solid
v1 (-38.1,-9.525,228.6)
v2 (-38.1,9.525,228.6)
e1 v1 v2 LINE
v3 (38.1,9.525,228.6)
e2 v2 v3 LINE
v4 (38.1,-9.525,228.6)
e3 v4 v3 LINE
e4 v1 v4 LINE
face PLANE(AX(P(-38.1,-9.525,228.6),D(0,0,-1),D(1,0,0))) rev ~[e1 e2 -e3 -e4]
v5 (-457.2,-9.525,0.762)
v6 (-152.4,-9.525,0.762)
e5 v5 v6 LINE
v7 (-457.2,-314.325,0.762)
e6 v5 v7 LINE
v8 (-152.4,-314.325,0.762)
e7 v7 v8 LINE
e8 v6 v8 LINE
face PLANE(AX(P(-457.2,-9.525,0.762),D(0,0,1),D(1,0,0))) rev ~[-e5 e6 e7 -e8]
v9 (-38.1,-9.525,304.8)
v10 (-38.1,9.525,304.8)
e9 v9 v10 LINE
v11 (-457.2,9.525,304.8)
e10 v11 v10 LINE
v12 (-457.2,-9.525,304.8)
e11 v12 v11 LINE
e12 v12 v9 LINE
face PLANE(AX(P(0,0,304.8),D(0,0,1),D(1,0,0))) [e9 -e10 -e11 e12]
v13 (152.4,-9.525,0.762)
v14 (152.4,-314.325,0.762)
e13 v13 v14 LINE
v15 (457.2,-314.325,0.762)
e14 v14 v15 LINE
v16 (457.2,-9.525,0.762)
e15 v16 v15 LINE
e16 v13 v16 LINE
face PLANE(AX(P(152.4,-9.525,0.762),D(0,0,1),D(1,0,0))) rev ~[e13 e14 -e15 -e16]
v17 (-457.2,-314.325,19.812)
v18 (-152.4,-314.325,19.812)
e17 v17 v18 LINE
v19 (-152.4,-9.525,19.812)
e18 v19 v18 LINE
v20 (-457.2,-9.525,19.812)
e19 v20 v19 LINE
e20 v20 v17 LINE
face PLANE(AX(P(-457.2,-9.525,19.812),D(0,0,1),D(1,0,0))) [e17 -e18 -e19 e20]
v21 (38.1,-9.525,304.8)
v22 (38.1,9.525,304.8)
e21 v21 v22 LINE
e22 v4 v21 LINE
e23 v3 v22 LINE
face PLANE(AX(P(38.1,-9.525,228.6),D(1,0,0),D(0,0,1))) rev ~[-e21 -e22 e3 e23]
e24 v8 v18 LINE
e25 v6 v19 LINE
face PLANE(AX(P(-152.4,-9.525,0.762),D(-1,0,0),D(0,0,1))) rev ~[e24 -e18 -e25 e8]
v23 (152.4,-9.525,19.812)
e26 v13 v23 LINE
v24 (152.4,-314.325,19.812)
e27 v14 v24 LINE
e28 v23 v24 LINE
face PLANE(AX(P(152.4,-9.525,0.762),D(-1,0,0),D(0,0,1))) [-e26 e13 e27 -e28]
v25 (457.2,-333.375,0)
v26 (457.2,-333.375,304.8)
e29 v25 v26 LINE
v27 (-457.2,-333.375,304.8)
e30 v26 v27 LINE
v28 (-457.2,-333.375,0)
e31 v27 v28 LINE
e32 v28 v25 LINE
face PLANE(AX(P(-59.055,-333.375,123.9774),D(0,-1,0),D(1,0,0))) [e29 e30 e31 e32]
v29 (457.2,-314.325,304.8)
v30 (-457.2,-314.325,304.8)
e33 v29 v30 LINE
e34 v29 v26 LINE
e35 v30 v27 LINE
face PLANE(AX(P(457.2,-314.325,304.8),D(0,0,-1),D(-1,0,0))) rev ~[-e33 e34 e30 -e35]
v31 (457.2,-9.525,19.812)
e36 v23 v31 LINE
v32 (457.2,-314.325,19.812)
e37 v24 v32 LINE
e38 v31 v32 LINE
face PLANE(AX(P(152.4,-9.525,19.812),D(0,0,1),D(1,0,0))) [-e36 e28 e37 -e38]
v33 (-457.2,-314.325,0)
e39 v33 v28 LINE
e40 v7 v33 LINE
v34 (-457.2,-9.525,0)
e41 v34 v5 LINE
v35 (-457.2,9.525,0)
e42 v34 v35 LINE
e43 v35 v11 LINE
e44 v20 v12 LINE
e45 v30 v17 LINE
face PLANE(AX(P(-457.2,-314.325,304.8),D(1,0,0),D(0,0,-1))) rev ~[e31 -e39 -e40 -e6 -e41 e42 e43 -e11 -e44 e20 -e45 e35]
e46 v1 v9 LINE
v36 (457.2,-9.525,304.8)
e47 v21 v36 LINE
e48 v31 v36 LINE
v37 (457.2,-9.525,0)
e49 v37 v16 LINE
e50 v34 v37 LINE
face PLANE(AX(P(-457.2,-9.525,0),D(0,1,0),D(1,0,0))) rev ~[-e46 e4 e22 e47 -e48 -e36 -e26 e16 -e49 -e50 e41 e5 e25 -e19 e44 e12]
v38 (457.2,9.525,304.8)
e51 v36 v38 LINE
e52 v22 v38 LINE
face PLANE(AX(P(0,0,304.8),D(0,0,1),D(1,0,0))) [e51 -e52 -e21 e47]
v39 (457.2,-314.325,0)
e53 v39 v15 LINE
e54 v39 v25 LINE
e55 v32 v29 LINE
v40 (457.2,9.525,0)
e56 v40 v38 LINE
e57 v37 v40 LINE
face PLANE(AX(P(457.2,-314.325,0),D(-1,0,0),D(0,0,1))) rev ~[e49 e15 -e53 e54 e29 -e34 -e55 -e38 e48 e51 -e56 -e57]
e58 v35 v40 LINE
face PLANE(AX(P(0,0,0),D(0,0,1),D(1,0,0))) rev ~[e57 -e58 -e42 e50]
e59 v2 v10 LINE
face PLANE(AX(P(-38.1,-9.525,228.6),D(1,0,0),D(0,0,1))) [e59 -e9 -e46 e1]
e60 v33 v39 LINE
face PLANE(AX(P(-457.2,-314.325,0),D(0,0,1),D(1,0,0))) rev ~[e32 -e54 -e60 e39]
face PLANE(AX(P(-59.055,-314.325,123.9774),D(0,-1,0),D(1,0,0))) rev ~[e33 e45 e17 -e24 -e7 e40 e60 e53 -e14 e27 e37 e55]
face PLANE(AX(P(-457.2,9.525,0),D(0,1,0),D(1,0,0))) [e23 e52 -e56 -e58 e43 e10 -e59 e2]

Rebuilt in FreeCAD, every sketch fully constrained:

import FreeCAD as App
import Part
import Sketcher
Q = App.Units.Quantity

doc = App.newDocument("Part")
body = doc.addObject("PartDesign::Body", "Body")

sketch1 = doc.addObject("Sketcher::SketchObject", "Sketch")
body.addObject(sketch1)
sketch1.AttachmentSupport = (doc.XY_Plane, [""])
sketch1.MapMode = "FlatFace"
sketch1.addGeometry(Part.LineSegment(App.Vector(-457.2, 9.525, 0), App.Vector(-457.2, -9.525, 0)), False)
sketch1.addGeometry(Part.LineSegment(App.Vector(-457.2, -9.525, 0), App.Vector(457.2, -9.525, 0)), False)
sketch1.addGeometry(Part.LineSegment(App.Vector(457.2, -9.525, 0), App.Vector(457.2, 9.525, 0)), False)
sketch1.addGeometry(Part.LineSegment(App.Vector(457.2, 9.525, 0), App.Vector(-457.2, 9.525, 0)), False)
sketch1.addConstraint(Sketcher.Constraint("Coincident", 0, 2, 1, 1))
sketch1.addConstraint(Sketcher.Constraint("Coincident", 1, 2, 2, 1))
sketch1.addConstraint(Sketcher.Constraint("Coincident", 2, 2, 3, 1))
sketch1.addConstraint(Sketcher.Constraint("Coincident", 3, 2, 0, 1))
sketch1.addConstraint(Sketcher.Constraint("Vertical", 0))
sketch1.addConstraint(Sketcher.Constraint("Horizontal", 1))
sketch1.addConstraint(Sketcher.Constraint("Vertical", 2))
sketch1.addConstraint(Sketcher.Constraint("Horizontal", 3))
sketch1.addConstraint(Sketcher.Constraint("Symmetric", 0, 2, 2, 2, -1, 1))
sketch1.addConstraint(Sketcher.Constraint("DistanceX", 1, 1, 1, 2, Q("36 in")))
sketch1.addConstraint(Sketcher.Constraint("DistanceY", 0, 2, 0, 1, Q("0.75 in")))
pad1 = doc.addObject("PartDesign::Pad", "Pad")
body.addObject(pad1)
pad1.Profile = sketch1
pad1.Length = Q("12 in")

sketch2 = doc.addObject("Sketcher::SketchObject", "Sketch001")
body.addObject(sketch2)
sketch2.AttachmentSupport = (doc.XZ_Plane, [""])
sketch2.MapMode = "FlatFace"
sketch2.AttachmentOffset = App.Placement(App.Vector(0, 0, 0.375 * 25.4), App.Rotation())
sketch2.addGeometry(Part.LineSegment(App.Vector(-38.1, 304.8, 0), App.Vector(-38.1, 228.6, 0)), False)
sketch2.addGeometry(Part.LineSegment(App.Vector(-38.1, 228.6, 0), App.Vector(38.1, 228.6, 0)), False)
sketch2.addGeometry(Part.LineSegment(App.Vector(38.1, 228.6, 0), App.Vector(38.1, 304.8, 0)), False)
sketch2.addGeometry(Part.LineSegment(App.Vector(38.1, 304.8, 0), App.Vector(-38.1, 304.8, 0)), False)
sketch2.addConstraint(Sketcher.Constraint("Coincident", 0, 2, 1, 1))
sketch2.addConstraint(Sketcher.Constraint("Coincident", 1, 2, 2, 1))
sketch2.addConstraint(Sketcher.Constraint("Coincident", 2, 2, 3, 1))
sketch2.addConstraint(Sketcher.Constraint("Coincident", 3, 2, 0, 1))
sketch2.addConstraint(Sketcher.Constraint("Vertical", 0))
sketch2.addConstraint(Sketcher.Constraint("Horizontal", 1))
sketch2.addConstraint(Sketcher.Constraint("Vertical", 2))
sketch2.addConstraint(Sketcher.Constraint("Horizontal", 3))
sketch2.addConstraint(Sketcher.Constraint("Equal", 3, 0))
sketch2.addConstraint(Sketcher.Constraint("DistanceX", 1, 1, 1, 2, Q("3 in")))
sketch2.addConstraint(Sketcher.Constraint("DistanceY", -1, 1, 0, 2, Q("9 in")))
sketch2.addConstraint(Sketcher.Constraint("DistanceX", 0, 2, -1, 1, Q("1.5 in")))
pocket1 = doc.addObject("PartDesign::Pocket", "Pocket")
body.addObject(pocket1)
pocket1.Profile = sketch2
pocket1.Length = Q("0.75 in")

sketch3 = doc.addObject("Sketcher::SketchObject", "Sketch002")
body.addObject(sketch3)
sketch3.AttachmentSupport = (doc.XZ_Plane, [""])
sketch3.MapMode = "FlatFace"
sketch3.AttachmentOffset = App.Placement(App.Vector(0, 0, 0.375 * 25.4), App.Rotation())
sketch3.addGeometry(Part.LineSegment(App.Vector(-457.2, 19.812, 0), App.Vector(-457.2, 0.762, 0)), False)
sketch3.addGeometry(Part.LineSegment(App.Vector(-457.2, 0.762, 0), App.Vector(-152.4, 0.762, 0)), False)
sketch3.addGeometry(Part.LineSegment(App.Vector(-152.4, 0.762, 0), App.Vector(-152.4, 19.812, 0)), False)
sketch3.addGeometry(Part.LineSegment(App.Vector(-152.4, 19.812, 0), App.Vector(-457.2, 19.812, 0)), False)
sketch3.addConstraint(Sketcher.Constraint("Coincident", 0, 2, 1, 1))
sketch3.addConstraint(Sketcher.Constraint("Coincident", 1, 2, 2, 1))
sketch3.addConstraint(Sketcher.Constraint("Coincident", 2, 2, 3, 1))
sketch3.addConstraint(Sketcher.Constraint("Coincident", 3, 2, 0, 1))
sketch3.addConstraint(Sketcher.Constraint("Vertical", 0))
sketch3.addConstraint(Sketcher.Constraint("Horizontal", 1))
sketch3.addConstraint(Sketcher.Constraint("Vertical", 2))
sketch3.addConstraint(Sketcher.Constraint("Horizontal", 3))
sketch3.addConstraint(Sketcher.Constraint("DistanceX", 1, 1, 1, 2, Q("12 in")))
sketch3.addConstraint(Sketcher.Constraint("DistanceX", 0, 2, -1, 1, Q("18 in")))
sketch3.addConstraint(Sketcher.Constraint("DistanceY", 0, 2, 0, 1, Q("0.75 in")))
sketch3.addConstraint(Sketcher.Constraint("DistanceY", -1, 1, 0, 2, Q("0.03 in")))
pad2 = doc.addObject("PartDesign::Pad", "Pad001")
body.addObject(pad2)
pad2.Profile = sketch3
pad2.Length = Q("12 in")

sketch4 = doc.addObject("Sketcher::SketchObject", "Sketch003")
body.addObject(sketch4)
sketch4.AttachmentSupport = (doc.XZ_Plane, [""])
sketch4.MapMode = "FlatFace"
sketch4.AttachmentOffset = App.Placement(App.Vector(0, 0, 0.375 * 25.4), App.Rotation())
sketch4.addGeometry(Part.LineSegment(App.Vector(152.4, 19.812, 0), App.Vector(152.4, 0.762, 0)), False)
sketch4.addGeometry(Part.LineSegment(App.Vector(152.4, 0.762, 0), App.Vector(457.2, 0.762, 0)), False)
sketch4.addGeometry(Part.LineSegment(App.Vector(457.2, 0.762, 0), App.Vector(457.2, 19.812, 0)), False)
sketch4.addGeometry(Part.LineSegment(App.Vector(457.2, 19.812, 0), App.Vector(152.4, 19.812, 0)), False)
sketch4.addConstraint(Sketcher.Constraint("Coincident", 0, 2, 1, 1))
sketch4.addConstraint(Sketcher.Constraint("Coincident", 1, 2, 2, 1))
sketch4.addConstraint(Sketcher.Constraint("Coincident", 2, 2, 3, 1))
sketch4.addConstraint(Sketcher.Constraint("Coincident", 3, 2, 0, 1))
sketch4.addConstraint(Sketcher.Constraint("Vertical", 0))
sketch4.addConstraint(Sketcher.Constraint("Horizontal", 1))
sketch4.addConstraint(Sketcher.Constraint("Vertical", 2))
sketch4.addConstraint(Sketcher.Constraint("Horizontal", 3))
sketch4.addConstraint(Sketcher.Constraint("DistanceX", 1, 1, 1, 2, Q("12 in")))
sketch4.addConstraint(Sketcher.Constraint("DistanceX", -1, 1, 0, 2, Q("6 in")))
sketch4.addConstraint(Sketcher.Constraint("DistanceY", 0, 2, 0, 1, Q("0.75 in")))
sketch4.addConstraint(Sketcher.Constraint("DistanceY", -1, 1, 0, 2, Q("0.03 in")))
pad3 = doc.addObject("PartDesign::Pad", "Pad002")
body.addObject(pad3)
pad3.Profile = sketch4
pad3.Length = Q("12 in")

sketch5 = doc.addObject("Sketcher::SketchObject", "Sketch004")
body.addObject(sketch5)
sketch5.AttachmentSupport = (doc.XZ_Plane, [""])
sketch5.MapMode = "FlatFace"
sketch5.AttachmentOffset = App.Placement(App.Vector(0, 0, 12.375 * 25.4), App.Rotation())
sketch5.addGeometry(Part.LineSegment(App.Vector(-457.2, 0, 0), App.Vector(457.2, 0, 0)), False)
sketch5.addGeometry(Part.LineSegment(App.Vector(457.2, 0, 0), App.Vector(457.2, 304.8, 0)), False)
sketch5.addGeometry(Part.LineSegment(App.Vector(457.2, 304.8, 0), App.Vector(-457.2, 304.8, 0)), False)
sketch5.addGeometry(Part.LineSegment(App.Vector(-457.2, 304.8, 0), App.Vector(-457.2, 0, 0)), False)
sketch5.addConstraint(Sketcher.Constraint("Coincident", 0, 2, 1, 1))
sketch5.addConstraint(Sketcher.Constraint("Coincident", 1, 2, 2, 1))
sketch5.addConstraint(Sketcher.Constraint("Coincident", 2, 2, 3, 1))
sketch5.addConstraint(Sketcher.Constraint("Coincident", 3, 2, 0, 1))
sketch5.addConstraint(Sketcher.Constraint("Horizontal", 0))
sketch5.addConstraint(Sketcher.Constraint("Vertical", 1))
sketch5.addConstraint(Sketcher.Constraint("Horizontal", 2))
sketch5.addConstraint(Sketcher.Constraint("Vertical", 3))
sketch5.addConstraint(Sketcher.Constraint("Symmetric", 0, 2, 3, 2, -1, 1))
sketch5.addConstraint(Sketcher.Constraint("DistanceX", 0, 1, 0, 2, Q("36 in")))
sketch5.addConstraint(Sketcher.Constraint("DistanceY", 1, 1, 1, 2, Q("12 in")))
pad4 = doc.addObject("PartDesign::Pad", "Pad003")
body.addObject(pad4)
pad4.Profile = sketch5
pad4.Length = Q("0.75 in")

doc.recompute()
